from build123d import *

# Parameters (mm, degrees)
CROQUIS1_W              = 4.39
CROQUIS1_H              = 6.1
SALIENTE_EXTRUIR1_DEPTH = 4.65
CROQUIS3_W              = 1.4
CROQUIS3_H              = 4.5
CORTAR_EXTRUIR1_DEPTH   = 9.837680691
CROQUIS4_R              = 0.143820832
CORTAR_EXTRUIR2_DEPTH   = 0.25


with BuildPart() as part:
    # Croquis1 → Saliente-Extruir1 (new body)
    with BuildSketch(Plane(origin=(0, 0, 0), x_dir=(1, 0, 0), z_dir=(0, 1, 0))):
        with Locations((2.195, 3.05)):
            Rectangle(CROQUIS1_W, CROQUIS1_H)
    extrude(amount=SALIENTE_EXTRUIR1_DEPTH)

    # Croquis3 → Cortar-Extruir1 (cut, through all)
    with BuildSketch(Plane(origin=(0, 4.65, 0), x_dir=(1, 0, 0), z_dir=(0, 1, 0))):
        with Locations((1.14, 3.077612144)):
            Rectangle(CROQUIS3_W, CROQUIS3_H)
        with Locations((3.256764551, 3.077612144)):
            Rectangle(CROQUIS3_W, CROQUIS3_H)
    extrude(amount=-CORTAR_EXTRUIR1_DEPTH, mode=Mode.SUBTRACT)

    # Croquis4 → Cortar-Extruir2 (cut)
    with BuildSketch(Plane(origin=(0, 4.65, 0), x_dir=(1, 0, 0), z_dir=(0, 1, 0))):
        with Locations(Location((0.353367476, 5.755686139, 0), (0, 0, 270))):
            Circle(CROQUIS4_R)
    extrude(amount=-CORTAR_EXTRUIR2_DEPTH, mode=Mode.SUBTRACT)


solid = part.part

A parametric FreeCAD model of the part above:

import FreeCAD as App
import Part
import Sketcher

V = App.Vector
Q = App.Units.Quantity

doc = App.newDocument("Part")
body = doc.addObject("PartDesign::Body", "Body")

# Sketch on XZ plane
sketch1 = body.newObject("Sketcher::SketchObject", "Sketch")
sketch1.AttachmentSupport = (doc.getObject("XZ_Plane"), [""])
sketch1.MapMode = "FlatFace"
sketch1.addGeometry([
    Part.LineSegment(V(0, -6.1, 0), V(0, 0, 0)),
    Part.LineSegment(V(0, 0, 0), V(4.4, 0, 0)),
    Part.LineSegment(V(4.4, 0, 0), V(4.4, -6.1, 0)),
    Part.LineSegment(V(4.4, -6.1, 0), V(0, -6.1, 0)),
], False)
sketch1.addConstraint([
    Sketcher.Constraint("Coincident", 0, 2, 1, 1),
    Sketcher.Constraint("Coincident", 1, 2, 2, 1),
    Sketcher.Constraint("Coincident", 2, 2, 3, 1),
    Sketcher.Constraint("Coincident", 3, 2, 0, 1),
    Sketcher.Constraint("Vertical", 0),
    Sketcher.Constraint("Horizontal", 1),
    Sketcher.Constraint("Vertical", 2),
    Sketcher.Constraint("Horizontal", 3),
    Sketcher.Constraint("Coincident", 0, 2, -1, 1),
    Sketcher.Constraint("DistanceY", 0, 1, 0, 2, Q("6.1 mm")),
    Sketcher.Constraint("DistanceX", 1, 1, 1, 2, Q("4.39 mm")),
])
pad1 = body.newObject("PartDesign::Pad", "Pad")
pad1.Profile = sketch1
pad1.Length = 4.65
pad1.Reversed = True

# Sketch on XZ plane
sketch2 = body.newObject("Sketcher::SketchObject", "Sketch001")
sketch2.AttachmentSupport = (doc.getObject("XZ_Plane"), [""])
sketch2.MapMode = "FlatFace"
sketch2.AttachmentOffset = App.Placement(V(0, 0, -4.65), App.Rotation())
sketch2.addGeometry([
    Part.LineSegment(V(0.4, -5.3, 0), V(0.4, -0.8, 0)),  # 0
    Part.LineSegment(V(0.4, -0.8, 0), V(1.8, -0.8, 0)),  # 1
    Part.LineSegment(V(1.8, -0.8, 0), V(1.8, -5.3, 0)),  # 2
    Part.LineSegment(V(1.8, -5.3, 0), V(0.4, -5.3, 0)),  # 3
    Part.LineSegment(V(2.6, -5.3, 0), V(2.6, -0.8, 0)),  # 4
    Part.LineSegment(V(2.6, -0.8, 0), V(4, -0.8, 0)),  # 5
    Part.LineSegment(V(4, -0.8, 0), V(4, -5.3, 0)),  # 6
    Part.LineSegment(V(4, -5.3, 0), V(2.6, -5.3, 0)),  # 7
], False)
sketch2.addConstraint([
    Sketcher.Constraint("Coincident", 0, 2, 1, 1),
    Sketcher.Constraint("Coincident", 1, 2, 2, 1),
    Sketcher.Constraint("Coincident", 2, 2, 3, 1),
    Sketcher.Constraint("Coincident", 3, 2, 0, 1),
    Sketcher.Constraint("Coincident", 4, 2, 5, 1),
    Sketcher.Constraint("Coincident", 5, 2, 6, 1),
    Sketcher.Constraint("Coincident", 6, 2, 7, 1),
    Sketcher.Constraint("Coincident", 7, 2, 4, 1),
    Sketcher.Constraint("Vertical", 0),
    Sketcher.Constraint("Horizontal", 1),
    Sketcher.Constraint("Vertical", 2),
    Sketcher.Constraint("Horizontal", 3),
    Sketcher.Constraint("Vertical", 4),
    Sketcher.Constraint("Horizontal", 5),
    Sketcher.Constraint("Vertical", 6),
    Sketcher.Constraint("Horizontal", 7),
    Sketcher.Constraint("Horizontal", 1, 2, 4, 2),
    Sketcher.Constraint("Horizontal", 3, 2, 6, 2),
    Sketcher.Constraint("Equal", 3, 5),
    Sketcher.Constraint("DistanceX", 1, 1, 1, 2, Q("1.4 mm")),
    Sketcher.Constraint("DistanceY", 0, 1, 0, 2, Q("4.5 mm")),
    Sketcher.Constraint("DistanceX", -1, 1, 0, 2, Q("0.44 mm")),
    Sketcher.Constraint("DistanceY", 0, 2, -1, 1, Q("0.827612 mm")),
    Sketcher.Constraint("DistanceX", -1, 1, 4, 2, Q("2.556765 mm")),
])
pocket1 = body.newObject("PartDesign::Pocket", "Pocket")
pocket1.Profile = sketch2
pocket1.Type = "ThroughAll"
pocket1.Reversed = True

# Sketch on XZ plane
sketch3 = body.newObject("Sketcher::SketchObject", "Sketch002")
sketch3.AttachmentSupport = (doc.getObject("XZ_Plane"), [""])
sketch3.MapMode = "FlatFace"
sketch3.AttachmentOffset = App.Placement(V(0, 0, -4.65), App.Rotation())
sketch3.addGeometry(Part.Circle(V(0.35, -5.76, 0), V(0, 0, 1), 0.14), False)
sketch3.addConstraint([
    Sketcher.Constraint("Diameter", 0, Q("0.287642 mm")),
    Sketcher.Constraint("DistanceX", -1, 1, 0, 3, Q("0.353367 mm")),
    Sketcher.Constraint("DistanceY", 0, 3, -1, 1, Q("5.755686 mm")),
])
pocket2 = body.newObject("PartDesign::Pocket", "Pocket001")
pocket2.Profile = sketch3
pocket2.Length = 0.25
pocket2.Reversed = True

doc.recompute()
